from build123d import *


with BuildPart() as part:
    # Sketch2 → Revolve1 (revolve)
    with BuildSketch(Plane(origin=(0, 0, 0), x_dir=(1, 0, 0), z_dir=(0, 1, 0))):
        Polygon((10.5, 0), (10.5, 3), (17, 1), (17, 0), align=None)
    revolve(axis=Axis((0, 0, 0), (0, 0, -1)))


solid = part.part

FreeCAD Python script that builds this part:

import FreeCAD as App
import Part
import Sketcher
from FreeCAD import Vector
Q = App.Units.Quantity

doc = App.newDocument("Part")
body = doc.addObject("PartDesign::Body", "Body")

# Sketch on XZ plane
sketch1 = doc.addObject("Sketcher::SketchObject", "Sketch")
body.addObject(sketch1)
sketch1.AttachmentSupport = (doc.XZ_Plane, [""])
sketch1.MapMode = "FlatFace"
sketch1.addGeometry(Part.LineSegment(Vector(10.5, -3, 0), Vector(10.5, 0, 0)), False)
sketch1.addGeometry(Part.LineSegment(Vector(10.5, 0, 0), Vector(17, 0, 0)), False)
sketch1.addGeometry(Part.LineSegment(Vector(17, 0, 0), Vector(17, -1, 0)), False)
sketch1.addGeometry(Part.LineSegment(Vector(17, -1, 0), Vector(10.5, -3, 0)), False)
sketch1.addConstraint(Sketcher.Constraint("Coincident", 0, 2, 1, 1))
sketch1.addConstraint(Sketcher.Constraint("Coincident", 1, 2, 2, 1))
sketch1.addConstraint(Sketcher.Constraint("Coincident", 2, 2, 3, 1))
sketch1.addConstraint(Sketcher.Constraint("Coincident", 3, 2, 0, 1))
sketch1.addConstraint(Sketcher.Constraint("Vertical", 0))
sketch1.addConstraint(Sketcher.Constraint("Horizontal", 1))
sketch1.addConstraint(Sketcher.Constraint("Vertical", 2))
sketch1.addConstraint(Sketcher.Constraint("PointOnObject", 0, 2, -1))
sketch1.addConstraint(Sketcher.Constraint("DistanceY", 0, 1, 0, 2, Q("3 mm")))
sketch1.addConstraint(Sketcher.Constraint("DistanceY", 2, 2, 2, 1, Q("1 mm")))
sketch1.addConstraint(Sketcher.Constraint("DistanceX", 1, 1, 1, 2, Q("6.5 mm")))
sketch1.addConstraint(Sketcher.Constraint("DistanceX", -1, 1, 1, 2, Q("17 mm")))
revolution = doc.addObject("PartDesign::Revolution", "Revolution")
body.addObject(revolution)
revolution.Profile = sketch1
revolution.ReferenceAxis = (sketch1, ["V_Axis"])
revolution.Angle = 360

doc.recompute()
